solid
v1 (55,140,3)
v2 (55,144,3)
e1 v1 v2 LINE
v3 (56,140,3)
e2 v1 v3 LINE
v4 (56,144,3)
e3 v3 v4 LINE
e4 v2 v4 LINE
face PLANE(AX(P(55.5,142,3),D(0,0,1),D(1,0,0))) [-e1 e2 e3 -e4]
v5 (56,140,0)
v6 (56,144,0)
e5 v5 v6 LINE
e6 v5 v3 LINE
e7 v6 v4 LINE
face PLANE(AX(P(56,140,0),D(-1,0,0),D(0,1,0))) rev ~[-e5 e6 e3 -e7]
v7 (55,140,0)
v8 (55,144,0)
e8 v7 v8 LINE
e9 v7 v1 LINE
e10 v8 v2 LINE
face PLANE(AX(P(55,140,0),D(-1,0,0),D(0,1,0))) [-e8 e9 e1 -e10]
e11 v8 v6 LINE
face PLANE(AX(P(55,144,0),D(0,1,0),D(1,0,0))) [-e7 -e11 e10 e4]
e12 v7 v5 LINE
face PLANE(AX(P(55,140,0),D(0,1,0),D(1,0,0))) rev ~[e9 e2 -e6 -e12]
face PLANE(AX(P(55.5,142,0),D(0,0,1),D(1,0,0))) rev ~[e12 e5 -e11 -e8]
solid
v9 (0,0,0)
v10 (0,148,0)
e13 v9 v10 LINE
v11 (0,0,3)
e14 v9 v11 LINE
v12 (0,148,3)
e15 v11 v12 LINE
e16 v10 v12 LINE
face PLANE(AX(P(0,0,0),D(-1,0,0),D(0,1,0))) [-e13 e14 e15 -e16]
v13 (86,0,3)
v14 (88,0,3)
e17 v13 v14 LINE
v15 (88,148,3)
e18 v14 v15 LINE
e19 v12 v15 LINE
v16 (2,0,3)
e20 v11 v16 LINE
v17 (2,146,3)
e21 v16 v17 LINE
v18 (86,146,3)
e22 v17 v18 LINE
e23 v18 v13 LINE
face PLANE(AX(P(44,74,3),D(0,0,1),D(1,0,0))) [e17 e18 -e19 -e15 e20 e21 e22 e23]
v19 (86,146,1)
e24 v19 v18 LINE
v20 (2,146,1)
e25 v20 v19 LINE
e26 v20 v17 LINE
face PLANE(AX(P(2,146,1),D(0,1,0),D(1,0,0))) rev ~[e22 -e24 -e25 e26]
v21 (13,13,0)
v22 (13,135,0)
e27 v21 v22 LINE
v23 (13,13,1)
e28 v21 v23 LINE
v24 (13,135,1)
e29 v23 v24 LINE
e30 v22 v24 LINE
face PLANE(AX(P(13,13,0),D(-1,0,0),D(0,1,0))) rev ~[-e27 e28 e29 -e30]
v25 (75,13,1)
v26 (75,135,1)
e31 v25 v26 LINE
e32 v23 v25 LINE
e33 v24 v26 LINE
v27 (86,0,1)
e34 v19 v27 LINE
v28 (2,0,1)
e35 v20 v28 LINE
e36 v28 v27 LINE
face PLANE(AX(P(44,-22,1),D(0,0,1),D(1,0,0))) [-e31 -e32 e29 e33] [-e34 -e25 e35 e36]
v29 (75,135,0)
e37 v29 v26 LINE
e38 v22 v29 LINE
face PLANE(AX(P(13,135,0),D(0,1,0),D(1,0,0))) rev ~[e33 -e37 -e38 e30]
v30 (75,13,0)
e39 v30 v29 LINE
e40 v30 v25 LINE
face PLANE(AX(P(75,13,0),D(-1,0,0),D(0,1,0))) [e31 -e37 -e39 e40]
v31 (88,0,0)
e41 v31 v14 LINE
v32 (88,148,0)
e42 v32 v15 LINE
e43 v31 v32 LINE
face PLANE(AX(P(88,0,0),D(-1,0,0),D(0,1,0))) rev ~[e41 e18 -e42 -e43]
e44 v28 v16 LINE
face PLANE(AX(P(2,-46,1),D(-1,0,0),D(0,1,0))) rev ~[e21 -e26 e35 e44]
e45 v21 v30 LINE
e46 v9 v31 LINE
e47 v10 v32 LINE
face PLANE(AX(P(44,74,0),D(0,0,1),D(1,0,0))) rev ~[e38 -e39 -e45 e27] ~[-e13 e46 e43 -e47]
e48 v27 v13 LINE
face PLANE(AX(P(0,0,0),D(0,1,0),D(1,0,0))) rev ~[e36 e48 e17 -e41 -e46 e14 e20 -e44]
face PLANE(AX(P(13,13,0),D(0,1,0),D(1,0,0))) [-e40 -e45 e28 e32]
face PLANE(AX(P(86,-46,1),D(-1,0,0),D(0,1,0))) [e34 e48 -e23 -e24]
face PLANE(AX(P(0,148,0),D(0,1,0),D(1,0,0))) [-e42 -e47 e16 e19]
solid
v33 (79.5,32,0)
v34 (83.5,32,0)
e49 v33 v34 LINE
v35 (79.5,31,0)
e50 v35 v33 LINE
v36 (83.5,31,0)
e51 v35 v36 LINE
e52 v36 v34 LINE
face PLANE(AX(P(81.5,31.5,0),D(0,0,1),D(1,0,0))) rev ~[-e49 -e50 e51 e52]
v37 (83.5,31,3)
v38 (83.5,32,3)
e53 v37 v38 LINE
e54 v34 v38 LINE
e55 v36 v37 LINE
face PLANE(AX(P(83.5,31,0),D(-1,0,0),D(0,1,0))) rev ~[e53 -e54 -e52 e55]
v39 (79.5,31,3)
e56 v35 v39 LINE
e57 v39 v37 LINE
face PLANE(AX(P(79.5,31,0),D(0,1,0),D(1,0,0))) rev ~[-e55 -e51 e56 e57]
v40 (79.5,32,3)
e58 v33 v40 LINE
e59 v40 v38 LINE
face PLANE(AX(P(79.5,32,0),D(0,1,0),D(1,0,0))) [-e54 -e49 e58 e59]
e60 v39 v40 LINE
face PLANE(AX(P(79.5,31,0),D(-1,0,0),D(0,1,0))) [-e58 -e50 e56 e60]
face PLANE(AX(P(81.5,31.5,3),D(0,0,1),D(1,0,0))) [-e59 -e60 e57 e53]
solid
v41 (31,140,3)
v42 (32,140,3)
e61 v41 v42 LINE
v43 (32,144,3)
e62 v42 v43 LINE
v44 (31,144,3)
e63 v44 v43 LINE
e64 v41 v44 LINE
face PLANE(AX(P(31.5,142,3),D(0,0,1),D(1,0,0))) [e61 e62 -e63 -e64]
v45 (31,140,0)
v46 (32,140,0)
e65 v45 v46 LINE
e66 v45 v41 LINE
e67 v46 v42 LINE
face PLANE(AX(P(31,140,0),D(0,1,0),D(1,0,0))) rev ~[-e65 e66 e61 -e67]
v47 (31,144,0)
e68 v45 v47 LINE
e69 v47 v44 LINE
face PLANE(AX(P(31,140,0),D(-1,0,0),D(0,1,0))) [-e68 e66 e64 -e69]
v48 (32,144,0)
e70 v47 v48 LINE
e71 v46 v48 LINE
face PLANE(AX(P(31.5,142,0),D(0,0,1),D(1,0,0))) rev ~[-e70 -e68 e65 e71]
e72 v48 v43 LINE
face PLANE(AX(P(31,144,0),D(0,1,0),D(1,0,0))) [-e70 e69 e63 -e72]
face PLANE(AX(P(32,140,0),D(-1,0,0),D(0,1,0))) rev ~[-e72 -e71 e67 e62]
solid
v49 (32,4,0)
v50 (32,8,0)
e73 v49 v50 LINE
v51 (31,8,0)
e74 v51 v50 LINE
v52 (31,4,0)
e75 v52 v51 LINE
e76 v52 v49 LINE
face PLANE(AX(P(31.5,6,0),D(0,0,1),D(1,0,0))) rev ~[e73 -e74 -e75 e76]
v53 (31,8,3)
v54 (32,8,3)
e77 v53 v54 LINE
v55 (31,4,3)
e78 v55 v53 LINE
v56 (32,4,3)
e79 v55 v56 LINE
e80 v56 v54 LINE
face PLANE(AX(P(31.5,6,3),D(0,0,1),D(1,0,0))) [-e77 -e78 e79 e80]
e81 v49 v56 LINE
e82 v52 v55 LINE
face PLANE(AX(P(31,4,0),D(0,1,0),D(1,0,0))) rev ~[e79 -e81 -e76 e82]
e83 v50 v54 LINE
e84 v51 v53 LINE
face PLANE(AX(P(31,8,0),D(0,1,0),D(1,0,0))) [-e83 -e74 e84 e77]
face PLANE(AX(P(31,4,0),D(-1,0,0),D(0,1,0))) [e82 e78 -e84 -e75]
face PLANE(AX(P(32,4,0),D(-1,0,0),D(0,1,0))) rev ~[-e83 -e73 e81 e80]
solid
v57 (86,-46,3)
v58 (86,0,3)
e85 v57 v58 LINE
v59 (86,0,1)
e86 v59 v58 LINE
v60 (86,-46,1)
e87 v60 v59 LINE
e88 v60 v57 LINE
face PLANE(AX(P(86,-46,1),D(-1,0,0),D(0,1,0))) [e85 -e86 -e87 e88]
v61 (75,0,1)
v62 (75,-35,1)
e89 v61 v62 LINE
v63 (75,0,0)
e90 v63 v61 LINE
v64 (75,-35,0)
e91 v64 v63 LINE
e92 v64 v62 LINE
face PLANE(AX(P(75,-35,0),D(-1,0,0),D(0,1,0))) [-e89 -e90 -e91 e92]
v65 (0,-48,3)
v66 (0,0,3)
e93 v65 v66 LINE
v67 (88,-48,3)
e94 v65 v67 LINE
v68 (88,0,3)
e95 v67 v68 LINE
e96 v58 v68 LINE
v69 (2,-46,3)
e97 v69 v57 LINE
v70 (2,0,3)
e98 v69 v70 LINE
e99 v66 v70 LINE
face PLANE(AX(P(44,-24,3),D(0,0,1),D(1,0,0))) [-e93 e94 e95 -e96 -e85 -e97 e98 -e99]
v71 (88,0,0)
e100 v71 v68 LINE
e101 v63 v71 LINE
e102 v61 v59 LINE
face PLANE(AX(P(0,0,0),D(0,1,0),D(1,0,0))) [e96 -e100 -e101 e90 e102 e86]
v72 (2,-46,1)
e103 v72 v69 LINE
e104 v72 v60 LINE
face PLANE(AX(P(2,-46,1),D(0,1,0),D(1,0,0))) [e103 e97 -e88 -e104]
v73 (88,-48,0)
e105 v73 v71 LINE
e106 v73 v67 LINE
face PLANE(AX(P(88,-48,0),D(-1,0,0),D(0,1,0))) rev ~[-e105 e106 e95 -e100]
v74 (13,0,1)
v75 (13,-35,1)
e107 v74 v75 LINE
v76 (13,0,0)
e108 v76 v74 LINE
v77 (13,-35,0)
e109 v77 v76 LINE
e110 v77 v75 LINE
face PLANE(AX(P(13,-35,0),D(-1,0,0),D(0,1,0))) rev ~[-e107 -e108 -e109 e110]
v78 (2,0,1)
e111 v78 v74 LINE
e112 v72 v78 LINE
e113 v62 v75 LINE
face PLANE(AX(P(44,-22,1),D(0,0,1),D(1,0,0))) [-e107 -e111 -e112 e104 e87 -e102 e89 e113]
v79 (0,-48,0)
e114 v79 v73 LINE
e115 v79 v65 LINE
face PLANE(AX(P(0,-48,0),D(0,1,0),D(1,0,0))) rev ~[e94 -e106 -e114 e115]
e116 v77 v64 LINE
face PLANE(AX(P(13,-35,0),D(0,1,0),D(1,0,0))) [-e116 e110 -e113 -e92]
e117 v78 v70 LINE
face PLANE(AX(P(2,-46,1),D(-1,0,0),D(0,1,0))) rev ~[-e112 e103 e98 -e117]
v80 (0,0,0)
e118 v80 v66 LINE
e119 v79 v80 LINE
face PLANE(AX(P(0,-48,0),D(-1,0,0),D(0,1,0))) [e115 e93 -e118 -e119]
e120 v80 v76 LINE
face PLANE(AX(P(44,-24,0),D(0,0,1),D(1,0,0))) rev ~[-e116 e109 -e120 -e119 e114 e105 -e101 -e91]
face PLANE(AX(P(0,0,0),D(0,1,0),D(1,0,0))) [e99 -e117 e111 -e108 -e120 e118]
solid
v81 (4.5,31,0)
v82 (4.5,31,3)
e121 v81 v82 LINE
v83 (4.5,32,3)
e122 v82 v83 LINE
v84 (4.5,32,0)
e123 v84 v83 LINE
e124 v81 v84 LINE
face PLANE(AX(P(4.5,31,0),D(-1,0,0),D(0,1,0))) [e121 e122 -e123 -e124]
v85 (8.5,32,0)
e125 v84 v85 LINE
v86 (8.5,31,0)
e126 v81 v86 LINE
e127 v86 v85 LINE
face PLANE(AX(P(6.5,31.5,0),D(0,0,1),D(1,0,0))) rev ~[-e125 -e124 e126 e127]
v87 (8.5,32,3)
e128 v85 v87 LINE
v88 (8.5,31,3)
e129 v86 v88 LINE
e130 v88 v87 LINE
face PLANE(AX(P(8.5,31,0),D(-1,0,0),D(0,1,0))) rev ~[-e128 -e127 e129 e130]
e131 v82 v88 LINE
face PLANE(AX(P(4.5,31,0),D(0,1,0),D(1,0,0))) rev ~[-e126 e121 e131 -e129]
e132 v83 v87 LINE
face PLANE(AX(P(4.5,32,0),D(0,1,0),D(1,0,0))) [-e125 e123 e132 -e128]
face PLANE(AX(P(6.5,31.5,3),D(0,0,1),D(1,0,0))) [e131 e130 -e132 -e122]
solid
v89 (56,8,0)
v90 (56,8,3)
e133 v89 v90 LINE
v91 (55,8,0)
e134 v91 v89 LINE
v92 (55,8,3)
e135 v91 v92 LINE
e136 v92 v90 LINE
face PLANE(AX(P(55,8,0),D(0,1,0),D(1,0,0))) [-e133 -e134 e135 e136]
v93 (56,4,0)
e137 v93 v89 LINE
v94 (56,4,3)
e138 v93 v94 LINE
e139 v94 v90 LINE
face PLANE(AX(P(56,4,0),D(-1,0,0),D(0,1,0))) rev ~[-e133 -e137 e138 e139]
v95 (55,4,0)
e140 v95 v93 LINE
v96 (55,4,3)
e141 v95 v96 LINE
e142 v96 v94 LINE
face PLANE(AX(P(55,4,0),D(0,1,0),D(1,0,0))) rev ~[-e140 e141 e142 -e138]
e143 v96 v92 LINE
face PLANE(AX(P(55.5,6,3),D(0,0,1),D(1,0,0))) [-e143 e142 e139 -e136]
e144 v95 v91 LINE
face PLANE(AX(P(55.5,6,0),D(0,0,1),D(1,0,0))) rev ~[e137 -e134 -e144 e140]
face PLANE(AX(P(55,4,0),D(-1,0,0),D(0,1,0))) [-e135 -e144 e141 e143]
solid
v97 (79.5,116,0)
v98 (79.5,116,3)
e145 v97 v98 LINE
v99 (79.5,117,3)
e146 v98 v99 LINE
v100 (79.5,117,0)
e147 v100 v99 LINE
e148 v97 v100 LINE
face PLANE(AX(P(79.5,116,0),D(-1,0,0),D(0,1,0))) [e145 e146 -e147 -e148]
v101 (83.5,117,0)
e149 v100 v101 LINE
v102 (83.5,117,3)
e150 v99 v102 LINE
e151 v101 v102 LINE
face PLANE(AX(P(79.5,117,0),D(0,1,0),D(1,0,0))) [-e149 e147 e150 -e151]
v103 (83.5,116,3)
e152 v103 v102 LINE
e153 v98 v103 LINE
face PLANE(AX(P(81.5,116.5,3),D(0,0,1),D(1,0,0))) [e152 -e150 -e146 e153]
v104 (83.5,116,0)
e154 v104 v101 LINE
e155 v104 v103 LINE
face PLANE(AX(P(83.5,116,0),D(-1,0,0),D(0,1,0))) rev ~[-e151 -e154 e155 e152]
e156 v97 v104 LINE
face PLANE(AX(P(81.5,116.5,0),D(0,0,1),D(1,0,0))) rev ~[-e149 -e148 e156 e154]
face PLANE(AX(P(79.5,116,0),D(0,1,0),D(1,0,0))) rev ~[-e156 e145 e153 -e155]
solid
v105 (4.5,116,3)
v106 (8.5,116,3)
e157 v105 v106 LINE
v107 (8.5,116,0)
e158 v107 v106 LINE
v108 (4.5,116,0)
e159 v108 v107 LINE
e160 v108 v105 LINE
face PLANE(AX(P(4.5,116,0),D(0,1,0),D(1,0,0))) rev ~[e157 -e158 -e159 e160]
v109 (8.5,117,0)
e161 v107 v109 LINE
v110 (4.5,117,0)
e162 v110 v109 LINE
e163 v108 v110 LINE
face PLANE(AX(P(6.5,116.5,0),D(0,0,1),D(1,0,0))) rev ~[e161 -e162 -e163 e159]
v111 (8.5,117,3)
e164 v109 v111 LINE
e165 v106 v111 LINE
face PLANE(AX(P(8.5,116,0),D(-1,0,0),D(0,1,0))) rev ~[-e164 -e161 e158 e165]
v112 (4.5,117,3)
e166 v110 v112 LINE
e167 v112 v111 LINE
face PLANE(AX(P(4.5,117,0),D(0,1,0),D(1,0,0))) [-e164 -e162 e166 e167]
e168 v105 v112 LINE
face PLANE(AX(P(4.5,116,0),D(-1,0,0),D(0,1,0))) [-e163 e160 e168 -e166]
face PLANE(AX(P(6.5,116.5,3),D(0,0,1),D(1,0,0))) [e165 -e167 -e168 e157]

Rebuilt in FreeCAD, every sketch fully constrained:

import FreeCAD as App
import Part
import Sketcher

V = App.Vector
Q = App.Units.Quantity

doc = App.newDocument("Part")
params = doc.addObject("Spreadsheet::Sheet", "Params")
for row, (alias, value) in enumerate([
    ("sketch1_width", "4 mm"),
    ("sketch1_height", "1 mm"),
    ("pad1_length", "3 mm"),
    ("sketch2_width", "4 mm"),
    ("sketch2_height", "1 mm"),
    ("pad2_length", "3 mm"),
    ("sketch3_width", "4 mm"),
    ("sketch3_height", "1 mm"),
    ("pad3_length", "3 mm"),
    ("sketch4_width", "4 mm"),
    ("sketch4_height", "1 mm"),
    ("pad4_length", "3 mm"),
    ("sketch5_width", "1 mm"),
    ("sketch5_height", "4 mm"),
    ("pad5_length", "3 mm"),
    ("sketch6_width", "1 mm"),
    ("sketch6_height", "4 mm"),
    ("pad6_length", "3 mm"),
    ("sketch7_width", "1 mm"),
    ("sketch7_height", "4 mm"),
    ("pad7_length", "3 mm"),
    ("sketch8_width", "1 mm"),
    ("sketch8_height", "4 mm"),
    ("pad8_length", "3 mm"),
    ("sketch9_width", "84 mm"),
    ("sketch9_height", "48 mm"),
    ("pad9_length", "2 mm"),
    ("sketch10_width", "84 mm"),
    ("sketch10_height", "144 mm"),
    ("pad10_length", "2 mm"),
    ("sketch11_width", "62 mm"),
    ("sketch11_height", "122 mm"),
    ("pad11_length", "3 mm"),
    ("sketch12_width", "88 mm"),
    ("sketch12_height", "148 mm"),
    ("pad12_length", "3 mm"),
    ("sketch13_width", "62 mm"),
    ("sketch13_height", "35 mm"),
    ("pad13_length", "3 mm"),
    ("sketch14_width", "88 mm"),
    ("sketch14_height", "48 mm"),
    ("pad14_length", "3 mm"),
], start=1):
    params.set(f"A{row}", alias)
    params.set(f"B{row}", "=" + value)
    params.setAlias(f"B{row}", alias)

body = doc.addObject("PartDesign::Body", "Body")

# Sketch on XY plane
sketch1 = body.newObject("Sketcher::SketchObject", "Sketch")
sketch1.AttachmentSupport = (doc.getObject("XY_Plane"), [""])
sketch1.MapMode = "FlatFace"
sketch1.addGeometry(Part.LineSegment(V(4.5, 32, 0), V(4.5, 31, 0)), False)
sketch1.addGeometry(Part.LineSegment(V(4.5, 31, 0), V(8.5, 31, 0)), False)
sketch1.addGeometry(Part.LineSegment(V(8.5, 31, 0), V(8.5, 32, 0)), False)
sketch1.addGeometry(Part.LineSegment(V(8.5, 32, 0), V(4.5, 32, 0)), False)
sketch1.addConstraint(Sketcher.Constraint("Coincident", 0, 2, 1, 1))
sketch1.addConstraint(Sketcher.Constraint("Coincident", 1, 2, 2, 1))
sketch1.addConstraint(Sketcher.Constraint("Coincident", 2, 2, 3, 1))
sketch1.addConstraint(Sketcher.Constraint("Coincident", 3, 2, 0, 1))
sketch1.addConstraint(Sketcher.Constraint("Vertical", 0))
sketch1.addConstraint(Sketcher.Constraint("Horizontal", 1))
sketch1.addConstraint(Sketcher.Constraint("Vertical", 2))
sketch1.addConstraint(Sketcher.Constraint("Horizontal", 3))
sketch1.addConstraint(Sketcher.Constraint("DistanceX", 1, 1, 1, 2, Q("4 mm")))
sketch1.addConstraint(Sketcher.Constraint("DistanceY", 0, 2, 0, 1, Q("1 mm")))
sketch1.addConstraint(Sketcher.Constraint("DistanceY", -1, 1, 0, 2, Q("31 mm")))
sketch1.addConstraint(Sketcher.Constraint("DistanceX", -1, 1, 0, 2, Q("4.5 mm")))
sketch1.setExpression("Constraints[8]", "Params.sketch1_width")
sketch1.setExpression("Constraints[9]", "Params.sketch1_height")
pad1 = body.newObject("PartDesign::Pad", "Pad")
pad1.Profile = sketch1
pad1.setExpression("Length", "Params.pad1_length")
body2 = doc.addObject("PartDesign::Body", "Body001")

# Sketch on XY plane
sketch2 = body2.newObject("Sketcher::SketchObject", "Sketch001")
sketch2.AttachmentSupport = (doc.getObject("XY_Plane001"), [""])
sketch2.MapMode = "FlatFace"
sketch2.addGeometry(Part.LineSegment(V(79.5, 32, 0), V(79.5, 31, 0)), False)
sketch2.addGeometry(Part.LineSegment(V(79.5, 31, 0), V(83.5, 31, 0)), False)
sketch2.addGeometry(Part.LineSegment(V(83.5, 31, 0), V(83.5, 32, 0)), False)
sketch2.addGeometry(Part.LineSegment(V(83.5, 32, 0), V(79.5, 32, 0)), False)
sketch2.addConstraint(Sketcher.Constraint("Coincident", 0, 2, 1, 1))
sketch2.addConstraint(Sketcher.Constraint("Coincident", 1, 2, 2, 1))
sketch2.addConstraint(Sketcher.Constraint("Coincident", 2, 2, 3, 1))
sketch2.addConstraint(Sketcher.Constraint("Coincident", 3, 2, 0, 1))
sketch2.addConstraint(Sketcher.Constraint("Vertical", 0))
sketch2.addConstraint(Sketcher.Constraint("Horizontal", 1))
sketch2.addConstraint(Sketcher.Constraint("Vertical", 2))
sketch2.addConstraint(Sketcher.Constraint("Horizontal", 3))
sketch2.addConstraint(Sketcher.Constraint("DistanceX", 1, 1, 1, 2, Q("4 mm")))
sketch2.addConstraint(Sketcher.Constraint("DistanceY", 0, 2, 0, 1, Q("1 mm")))
sketch2.addConstraint(Sketcher.Constraint("DistanceY", -1, 1, 0, 2, Q("31 mm")))
sketch2.addConstraint(Sketcher.Constraint("DistanceX", -1, 1, 0, 2, Q("79.5 mm")))
sketch2.setExpression("Constraints[8]", "Params.sketch2_width")
sketch2.setExpression("Constraints[9]", "Params.sketch2_height")
pad2 = body2.newObject("PartDesign::Pad", "Pad001")
pad2.Profile = sketch2
pad2.setExpression("Length", "Params.pad2_length")
body3 = doc.addObject("PartDesign::Body", "Body002")

# Sketch on XY plane
sketch3 = body3.newObject("Sketcher::SketchObject", "Sketch002")
sketch3.AttachmentSupport = (doc.getObject("XY_Plane002"), [""])
sketch3.MapMode = "FlatFace"
sketch3.addGeometry(Part.LineSegment(V(4.5, 117, 0), V(4.5, 116, 0)), False)
sketch3.addGeometry(Part.LineSegment(V(4.5, 116, 0), V(8.5, 116, 0)), False)
sketch3.addGeometry(Part.LineSegment(V(8.5, 116, 0), V(8.5, 117, 0)), False)
sketch3.addGeometry(Part.LineSegment(V(8.5, 117, 0), V(4.5, 117, 0)), False)
sketch3.addConstraint(Sketcher.Constraint("Coincident", 0, 2, 1, 1))
sketch3.addConstraint(Sketcher.Constraint("Coincident", 1, 2, 2, 1))
sketch3.addConstraint(Sketcher.Constraint("Coincident", 2, 2, 3, 1))
sketch3.addConstraint(Sketcher.Constraint("Coincident", 3, 2, 0, 1))
sketch3.addConstraint(Sketcher.Constraint("Vertical", 0))
sketch3.addConstraint(Sketcher.Constraint("Horizontal", 1))
sketch3.addConstraint(Sketcher.Constraint("Vertical", 2))
sketch3.addConstraint(Sketcher.Constraint("Horizontal", 3))
sketch3.addConstraint(Sketcher.Constraint("DistanceX", 1, 1, 1, 2, Q("4 mm")))
sketch3.addConstraint(Sketcher.Constraint("DistanceY", 0, 2, 0, 1, Q("1 mm")))
sketch3.addConstraint(Sketcher.Constraint("DistanceY", -1, 1, 0, 2, Q("116 mm")))
sketch3.addConstraint(Sketcher.Constraint("DistanceX", -1, 1, 0, 2, Q("4.5 mm")))
sketch3.setExpression("Constraints[8]", "Params.sketch3_width")
sketch3.setExpression("Constraints[9]", "Params.sketch3_height")
pad3 = body3.newObject("PartDesign::Pad", "Pad002")
pad3.Profile = sketch3
pad3.setExpression("Length", "Params.pad3_length")
body4 = doc.addObject("PartDesign::Body", "Body003")

# Sketch on XY plane
sketch4 = body4.newObject("Sketcher::SketchObject", "Sketch003")
sketch4.AttachmentSupport = (doc.getObject("XY_Plane003"), [""])
sketch4.MapMode = "FlatFace"
sketch4.addGeometry(Part.LineSegment(V(79.5, 117, 0), V(79.5, 116, 0)), False)
sketch4.addGeometry(Part.LineSegment(V(79.5, 116, 0), V(83.5, 116, 0)), False)
sketch4.addGeometry(Part.LineSegment(V(83.5, 116, 0), V(83.5, 117, 0)), False)
sketch4.addGeometry(Part.LineSegment(V(83.5, 117, 0), V(79.5, 117, 0)), False)
sketch4.addConstraint(Sketcher.Constraint("Coincident", 0, 2, 1, 1))
sketch4.addConstraint(Sketcher.Constraint("Coincident", 1, 2, 2, 1))
sketch4.addConstraint(Sketcher.Constraint("Coincident", 2, 2, 3, 1))
sketch4.addConstraint(Sketcher.Constraint("Coincident", 3, 2, 0, 1))
sketch4.addConstraint(Sketcher.Constraint("Vertical", 0))
sketch4.addConstraint(Sketcher.Constraint("Horizontal", 1))
sketch4.addConstraint(Sketcher.Constraint("Vertical", 2))
sketch4.addConstraint(Sketcher.Constraint("Horizontal", 3))
sketch4.addConstraint(Sketcher.Constraint("DistanceX", 1, 1, 1, 2, Q("4 mm")))
sketch4.addConstraint(Sketcher.Constraint("DistanceY", 0, 2, 0, 1, Q("1 mm")))
sketch4.addConstraint(Sketcher.Constraint("DistanceY", -1, 1, 0, 2, Q("116 mm")))
sketch4.addConstraint(Sketcher.Constraint("DistanceX", -1, 1, 0, 2, Q("79.5 mm")))
sketch4.setExpression("Constraints[8]", "Params.sketch4_width")
sketch4.setExpression("Constraints[9]", "Params.sketch4_height")
pad4 = body4.newObject("PartDesign::Pad", "Pad003")
pad4.Profile = sketch4
pad4.setExpression("Length", "Params.pad4_length")
body5 = doc.addObject("PartDesign::Body", "Body004")

# Sketch on XY plane
sketch5 = body5.newObject("Sketcher::SketchObject", "Sketch004")
sketch5.AttachmentSupport = (doc.getObject("XY_Plane004"), [""])
sketch5.MapMode = "FlatFace"
sketch5.addGeometry(Part.LineSegment(V(31, 8, 0), V(31, 4, 0)), False)
sketch5.addGeometry(Part.LineSegment(V(31, 4, 0), V(32, 4, 0)), False)
sketch5.addGeometry(Part.LineSegment(V(32, 4, 0), V(32, 8, 0)), False)
sketch5.addGeometry(Part.LineSegment(V(32, 8, 0), V(31, 8, 0)), False)
sketch5.addConstraint(Sketcher.Constraint("Coincident", 0, 2, 1, 1))
sketch5.addConstraint(Sketcher.Constraint("Coincident", 1, 2, 2, 1))
sketch5.addConstraint(Sketcher.Constraint("Coincident", 2, 2, 3, 1))
sketch5.addConstraint(Sketcher.Constraint("Coincident", 3, 2, 0, 1))
sketch5.addConstraint(Sketcher.Constraint("Vertical", 0))
sketch5.addConstraint(Sketcher.Constraint("Horizontal", 1))
sketch5.addConstraint(Sketcher.Constraint("Vertical", 2))
sketch5.addConstraint(Sketcher.Constraint("Horizontal", 3))
sketch5.addConstraint(Sketcher.Constraint("DistanceX", 1, 1, 1, 2, Q("1 mm")))
sketch5.addConstraint(Sketcher.Constraint("DistanceY", 0, 2, 0, 1, Q("4 mm")))
sketch5.addConstraint(Sketcher.Constraint("DistanceX", -1, 1, 0, 2, Q("31 mm")))
sketch5.addConstraint(Sketcher.Constraint("DistanceY", -1, 1, 0, 2, Q("4 mm")))
sketch5.setExpression("Constraints[8]", "Params.sketch5_width")
sketch5.setExpression("Constraints[9]", "Params.sketch5_height")
pad5 = body5.newObject("PartDesign::Pad", "Pad004")
pad5.Profile = sketch5
pad5.setExpression("Length", "Params.pad5_length")
body6 = doc.addObject("PartDesign::Body", "Body005")

# Sketch on XY plane
sketch6 = body6.newObject("Sketcher::SketchObject", "Sketch005")
sketch6.AttachmentSupport = (doc.getObject("XY_Plane005"), [""])
sketch6.MapMode = "FlatFace"
sketch6.addGeometry(Part.LineSegment(V(55, 8, 0), V(55, 4, 0)), False)
sketch6.addGeometry(Part.LineSegment(V(55, 4, 0), V(56, 4, 0)), False)
sketch6.addGeometry(Part.LineSegment(V(56, 4, 0), V(56, 8, 0)), False)
sketch6.addGeometry(Part.LineSegment(V(56, 8, 0), V(55, 8, 0)), False)
sketch6.addConstraint(Sketcher.Constraint("Coincident", 0, 2, 1, 1))
sketch6.addConstraint(Sketcher.Constraint("Coincident", 1, 2, 2, 1))
sketch6.addConstraint(Sketcher.Constraint("Coincident", 2, 2, 3, 1))
sketch6.addConstraint(Sketcher.Constraint("Coincident", 3, 2, 0, 1))
sketch6.addConstraint(Sketcher.Constraint("Vertical", 0))
sketch6.addConstraint(Sketcher.Constraint("Horizontal", 1))
sketch6.addConstraint(Sketcher.Constraint("Vertical", 2))
sketch6.addConstraint(Sketcher.Constraint("Horizontal", 3))
sketch6.addConstraint(Sketcher.Constraint("DistanceX", 1, 1, 1, 2, Q("1 mm")))
sketch6.addConstraint(Sketcher.Constraint("DistanceY", 0, 2, 0, 1, Q("4 mm")))
sketch6.addConstraint(Sketcher.Constraint("DistanceX", -1, 1, 0, 2, Q("55 mm")))
sketch6.addConstraint(Sketcher.Constraint("DistanceY", -1, 1, 0, 2, Q("4 mm")))
sketch6.setExpression("Constraints[8]", "Params.sketch6_width")
sketch6.setExpression("Constraints[9]", "Params.sketch6_height")
pad6 = body6.newObject("PartDesign::Pad", "Pad005")
pad6.Profile = sketch6
pad6.setExpression("Length", "Params.pad6_length")
body7 = doc.addObject("PartDesign::Body", "Body006")

# Sketch on XY plane
sketch7 = body7.newObject("Sketcher::SketchObject", "Sketch006")
sketch7.AttachmentSupport = (doc.getObject("XY_Plane006"), [""])
sketch7.MapMode = "FlatFace"
sketch7.addGeometry(Part.LineSegment(V(31, 144, 0), V(31, 140, 0)), False)
sketch7.addGeometry(Part.LineSegment(V(31, 140, 0), V(32, 140, 0)), False)
sketch7.addGeometry(Part.LineSegment(V(32, 140, 0), V(32, 144, 0)), False)
sketch7.addGeometry(Part.LineSegment(V(32, 144, 0), V(31, 144, 0)), False)
sketch7.addConstraint(Sketcher.Constraint("Coincident", 0, 2, 1, 1))
sketch7.addConstraint(Sketcher.Constraint("Coincident", 1, 2, 2, 1))
sketch7.addConstraint(Sketcher.Constraint("Coincident", 2, 2, 3, 1))
sketch7.addConstraint(Sketcher.Constraint("Coincident", 3, 2, 0, 1))
sketch7.addConstraint(Sketcher.Constraint("Vertical", 0))
sketch7.addConstraint(Sketcher.Constraint("Horizontal", 1))
sketch7.addConstraint(Sketcher.Constraint("Vertical", 2))
sketch7.addConstraint(Sketcher.Constraint("Horizontal", 3))
sketch7.addConstraint(Sketcher.Constraint("DistanceX", 1, 1, 1, 2, Q("1 mm")))
sketch7.addConstraint(Sketcher.Constraint("DistanceY", 0, 2, 0, 1, Q("4 mm")))
sketch7.addConstraint(Sketcher.Constraint("DistanceX", -1, 1, 0, 2, Q("31 mm")))
sketch7.addConstraint(Sketcher.Constraint("DistanceY", -1, 1, 0, 2, Q("140 mm")))
sketch7.setExpression("Constraints[8]", "Params.sketch7_width")
sketch7.setExpression("Constraints[9]", "Params.sketch7_height")
pad7 = body7.newObject("PartDesign::Pad", "Pad006")
pad7.Profile = sketch7
pad7.setExpression("Length", "Params.pad7_length")
body8 = doc.addObject("PartDesign::Body", "Body007")

# Sketch on XY plane
sketch8 = body8.newObject("Sketcher::SketchObject", "Sketch007")
sketch8.AttachmentSupport = (doc.getObject("XY_Plane007"), [""])
sketch8.MapMode = "FlatFace"
sketch8.addGeometry(Part.LineSegment(V(55, 144, 0), V(55, 140, 0)), False)
sketch8.addGeometry(Part.LineSegment(V(55, 140, 0), V(56, 140, 0)), False)
sketch8.addGeometry(Part.LineSegment(V(56, 140, 0), V(56, 144, 0)), False)
sketch8.addGeometry(Part.LineSegment(V(56, 144, 0), V(55, 144, 0)), False)
sketch8.addConstraint(Sketcher.Constraint("Coincident", 0, 2, 1, 1))
sketch8.addConstraint(Sketcher.Constraint("Coincident", 1, 2, 2, 1))
sketch8.addConstraint(Sketcher.Constraint("Coincident", 2, 2, 3, 1))
sketch8.addConstraint(Sketcher.Constraint("Coincident", 3, 2, 0, 1))
sketch8.addConstraint(Sketcher.Constraint("Vertical", 0))
sketch8.addConstraint(Sketcher.Constraint("Horizontal", 1))
sketch8.addConstraint(Sketcher.Constraint("Vertical", 2))
sketch8.addConstraint(Sketcher.Constraint("Horizontal", 3))
sketch8.addConstraint(Sketcher.Constraint("DistanceX", 1, 1, 1, 2, Q("1 mm")))
sketch8.addConstraint(Sketcher.Constraint("DistanceY", 0, 2, 0, 1, Q("4 mm")))
sketch8.addConstraint(Sketcher.Constraint("DistanceX", -1, 1, 0, 2, Q("55 mm")))
sketch8.addConstraint(Sketcher.Constraint("DistanceY", -1, 1, 0, 2, Q("140 mm")))
sketch8.setExpression("Constraints[8]", "Params.sketch8_width")
sketch8.setExpression("Constraints[9]", "Params.sketch8_height")
pad8 = body8.newObject("PartDesign::Pad", "Pad007")
pad8.Profile = sketch8
pad8.setExpression("Length", "Params.pad8_length")
body9 = doc.addObject("PartDesign::Body", "Body008")

# Sketch on XY plane
sketch9 = body9.newObject("Sketcher::SketchObject", "Sketch008")
sketch9.AttachmentSupport = (doc.getObject("XY_Plane008"), [""])
sketch9.MapMode = "FlatFace"
sketch9.AttachmentOffset = App.Placement(V(0, 0, 1), App.Rotation())
sketch9.addGeometry(Part.LineSegment(V(2, 2, 0), V(2, -46, 0)), False)
sketch9.addGeometry(Part.LineSegment(V(2, -46, 0), V(86, -46, 0)), False)
sketch9.addGeometry(Part.LineSegment(V(86, -46, 0), V(86, 2, 0)), False)
sketch9.addGeometry(Part.LineSegment(V(86, 2, 0), V(2, 2, 0)), False)
sketch9.addConstraint(Sketcher.Constraint("Coincident", 0, 2, 1, 1))
sketch9.addConstraint(Sketcher.Constraint("Coincident", 1, 2, 2, 1))
sketch9.addConstraint(Sketcher.Constraint("Coincident", 2, 2, 3, 1))
sketch9.addConstraint(Sketcher.Constraint("Coincident", 3, 2, 0, 1))
sketch9.addConstraint(Sketcher.Constraint("Vertical", 0))
sketch9.addConstraint(Sketcher.Constraint("Horizontal", 1))
sketch9.addConstraint(Sketcher.Constraint("Vertical", 2))
sketch9.addConstraint(Sketcher.Constraint("Horizontal", 3))
sketch9.addConstraint(Sketcher.Constraint("DistanceX", 1, 1, 1, 2, Q("84 mm")))
sketch9.addConstraint(Sketcher.Constraint("DistanceY", 0, 2, 0, 1, Q("48 mm")))
sketch9.addConstraint(Sketcher.Constraint("DistanceX", -1, 1, 0, 2, Q("2 mm")))
sketch9.addConstraint(Sketcher.Constraint("DistanceY", 0, 2, -1, 1, Q("46 mm")))
sketch9.setExpression("Constraints[8]", "Params.sketch9_width")
sketch9.setExpression("Constraints[9]", "Params.sketch9_height")
pad9 = body9.newObject("PartDesign::Pad", "Pad008")
pad9.Profile = sketch9
pad9.setExpression("Length", "Params.pad9_length")
body10 = doc.addObject("PartDesign::Body", "Body009")

# Sketch on XY plane
sketch10 = body10.newObject("Sketcher::SketchObject", "Sketch009")
sketch10.AttachmentSupport = (doc.getObject("XY_Plane009"), [""])
sketch10.MapMode = "FlatFace"
sketch10.AttachmentOffset = App.Placement(V(0, 0, 1), App.Rotation())
sketch10.addGeometry(Part.LineSegment(V(2, 146, 0), V(2, 2, 0)), False)
sketch10.addGeometry(Part.LineSegment(V(2, 2, 0), V(86, 2, 0)), False)
sketch10.addGeometry(Part.LineSegment(V(86, 2, 0), V(86, 146, 0)), False)
sketch10.addGeometry(Part.LineSegment(V(86, 146, 0), V(2, 146, 0)), False)
sketch10.addConstraint(Sketcher.Constraint("Coincident", 0, 2, 1, 1))
sketch10.addConstraint(Sketcher.Constraint("Coincident", 1, 2, 2, 1))
sketch10.addConstraint(Sketcher.Constraint("Coincident", 2, 2, 3, 1))
sketch10.addConstraint(Sketcher.Constraint("Coincident", 3, 2, 0, 1))
sketch10.addConstraint(Sketcher.Constraint("Vertical", 0))
sketch10.addConstraint(Sketcher.Constraint("Horizontal", 1))
sketch10.addConstraint(Sketcher.Constraint("Vertical", 2))
sketch10.addConstraint(Sketcher.Constraint("Horizontal", 3))
sketch10.addConstraint(Sketcher.Constraint("DistanceX", 1, 1, 1, 2, Q("84 mm")))
sketch10.addConstraint(Sketcher.Constraint("DistanceY", 0, 2, 0, 1, Q("144 mm")))
sketch10.addConstraint(Sketcher.Constraint("DistanceX", -1, 1, 0, 2, Q("2 mm")))
sketch10.addConstraint(Sketcher.Constraint("DistanceY", -1, 1, 0, 2, Q("2 mm")))
sketch10.setExpression("Constraints[8]", "Params.sketch10_width")
sketch10.setExpression("Constraints[9]", "Params.sketch10_height")
pad10 = body10.newObject("PartDesign::Pad", "Pad009")
pad10.Profile = sketch10
pad10.setExpression("Length", "Params.pad10_length")
body11 = doc.addObject("PartDesign::Body", "Body010")

# Sketch on XY plane
sketch11 = body11.newObject("Sketcher::SketchObject", "Sketch010")
sketch11.AttachmentSupport = (doc.getObject("XY_Plane010"), [""])
sketch11.MapMode = "FlatFace"
sketch11.addGeometry(Part.LineSegment(V(13, 135, 0), V(13, 13, 0)), False)
sketch11.addGeometry(Part.LineSegment(V(13, 13, 0), V(75, 13, 0)), False)
sketch11.addGeometry(Part.LineSegment(V(75, 13, 0), V(75, 135, 0)), False)
sketch11.addGeometry(Part.LineSegment(V(75, 135, 0), V(13, 135, 0)), False)
sketch11.addConstraint(Sketcher.Constraint("Coincident", 0, 2, 1, 1))
sketch11.addConstraint(Sketcher.Constraint("Coincident", 1, 2, 2, 1))
sketch11.addConstraint(Sketcher.Constraint("Coincident", 2, 2, 3, 1))
sketch11.addConstraint(Sketcher.Constraint("Coincident", 3, 2, 0, 1))
sketch11.addConstraint(Sketcher.Constraint("Vertical", 0))
sketch11.addConstraint(Sketcher.Constraint("Horizontal", 1))
sketch11.addConstraint(Sketcher.Constraint("Vertical", 2))
sketch11.addConstraint(Sketcher.Constraint("Horizontal", 3))
sketch11.addConstraint(Sketcher.Constraint("DistanceX", 1, 1, 1, 2, Q("62 mm")))
sketch11.addConstraint(Sketcher.Constraint("DistanceY", 0, 2, 0, 1, Q("122 mm")))
sketch11.addConstraint(Sketcher.Constraint("DistanceX", -1, 1, 0, 2, Q("13 mm")))
sketch11.addConstraint(Sketcher.Constraint("DistanceY", -1, 1, 0, 2, Q("13 mm")))
sketch11.setExpression("Constraints[8]", "Params.sketch11_width")
sketch11.setExpression("Constraints[9]", "Params.sketch11_height")
pad11 = body11.newObject("PartDesign::Pad", "Pad010")
pad11.Profile = sketch11
pad11.setExpression("Length", "Params.pad11_length")
body12 = doc.addObject("PartDesign::Body", "Body011")

# Sketch on XY plane
sketch12 = body12.newObject("Sketcher::SketchObject", "Sketch011")
sketch12.AttachmentSupport = (doc.getObject("XY_Plane011"), [""])
sketch12.MapMode = "FlatFace"
sketch12.addGeometry(Part.LineSegment(V(0, 148, 0), V(0, 0, 0)), False)
sketch12.addGeometry(Part.LineSegment(V(0, 0, 0), V(88, 0, 0)), False)
sketch12.addGeometry(Part.LineSegment(V(88, 0, 0), V(88, 148, 0)), False)
sketch12.addGeometry(Part.LineSegment(V(88, 148, 0), V(0, 148, 0)), False)
sketch12.addConstraint(Sketcher.Constraint("Coincident", 0, 2, 1, 1))
sketch12.addConstraint(Sketcher.Constraint("Coincident", 1, 2, 2, 1))
sketch12.addConstraint(Sketcher.Constraint("Coincident", 2, 2, 3, 1))
sketch12.addConstraint(Sketcher.Constraint("Coincident", 3, 2, 0, 1))
sketch12.addConstraint(Sketcher.Constraint("Vertical", 0))
sketch12.addConstraint(Sketcher.Constraint("Horizontal", 1))
sketch12.addConstraint(Sketcher.Constraint("Vertical", 2))
sketch12.addConstraint(Sketcher.Constraint("Horizontal", 3))
sketch12.addConstraint(Sketcher.Constraint("Coincident", 0, 2, -1, 1))
sketch12.addConstraint(Sketcher.Constraint("DistanceX", 1, 1, 1, 2, Q("88 mm")))
sketch12.addConstraint(Sketcher.Constraint("DistanceY", 0, 2, 0, 1, Q("148 mm")))
sketch12.setExpression("Constraints[9]", "Params.sketch12_width")
sketch12.setExpression("Constraints[10]", "Params.sketch12_height")
pad12 = body12.newObject("PartDesign::Pad", "Pad011")
pad12.Profile = sketch12
pad12.setExpression("Length", "Params.pad12_length")
doc.recompute()

boolean = body12.newObject("PartDesign::Boolean", "Boolean")
boolean.Type = "Cut"
boolean.addObjects([body11])
doc.recompute()

boolean2 = body12.newObject("PartDesign::Boolean", "Boolean001")
boolean2.Type = "Cut"
boolean2.addObjects([body10])
doc.recompute()

body13 = doc.addObject("PartDesign::Body", "Body012")
body13.BaseFeature = body9
boolean3 = body12.newObject("PartDesign::Boolean", "Boolean002")
boolean3.Type = "Cut"
boolean3.addObjects([body13])
doc.recompute()
body14 = doc.addObject("PartDesign::Body", "Body013")

# Sketch on XY plane
sketch13 = body14.newObject("Sketcher::SketchObject", "Sketch012")
sketch13.AttachmentSupport = (doc.getObject("XY_Plane013"), [""])
sketch13.MapMode = "FlatFace"
sketch13.addGeometry(Part.LineSegment(V(13, 0, 0), V(13, -35, 0)), False)
sketch13.addGeometry(Part.LineSegment(V(13, -35, 0), V(75, -35, 0)), False)
sketch13.addGeometry(Part.LineSegment(V(75, -35, 0), V(75, 0, 0)), False)
sketch13.addGeometry(Part.LineSegment(V(75, 0, 0), V(13, 0, 0)), False)
sketch13.addConstraint(Sketcher.Constraint("Coincident", 0, 2, 1, 1))
sketch13.addConstraint(Sketcher.Constraint("Coincident", 1, 2, 2, 1))
sketch13.addConstraint(Sketcher.Constraint("Coincident", 2, 2, 3, 1))
sketch13.addConstraint(Sketcher.Constraint("Coincident", 3, 2, 0, 1))
sketch13.addConstraint(Sketcher.Constraint("Vertical", 0))
sketch13.addConstraint(Sketcher.Constraint("Horizontal", 1))
sketch13.addConstraint(Sketcher.Constraint("Vertical", 2))
sketch13.addConstraint(Sketcher.Constraint("Horizontal", 3))
sketch13.addConstraint(Sketcher.Constraint("PointOnObject", 2, 2, -1))
sketch13.addConstraint(Sketcher.Constraint("DistanceX", 1, 1, 1, 2, Q("62 mm")))
sketch13.addConstraint(Sketcher.Constraint("DistanceY", 0, 2, 0, 1, Q("35 mm")))
sketch13.addConstraint(Sketcher.Constraint("DistanceX", -1, 1, 0, 2, Q("13 mm")))
sketch13.setExpression("Constraints[9]", "Params.sketch13_width")
sketch13.setExpression("Constraints[10]", "Params.sketch13_height")
pad13 = body14.newObject("PartDesign::Pad", "Pad012")
pad13.Profile = sketch13
pad13.setExpression("Length", "Params.pad13_length")
body15 = doc.addObject("PartDesign::Body", "Body014")

# Sketch on XY plane
sketch14 = body15.newObject("Sketcher::SketchObject", "Sketch013")
sketch14.AttachmentSupport = (doc.getObject("XY_Plane014"), [""])
sketch14.MapMode = "FlatFace"
sketch14.addGeometry(Part.LineSegment(V(0, 0, 0), V(0, -48, 0)), False)
sketch14.addGeometry(Part.LineSegment(V(0, -48, 0), V(88, -48, 0)), False)
sketch14.addGeometry(Part.LineSegment(V(88, -48, 0), V(88, 0, 0)), False)
sketch14.addGeometry(Part.LineSegment(V(88, 0, 0), V(0, 0, 0)), False)
sketch14.addConstraint(Sketcher.Constraint("Coincident", 0, 2, 1, 1))
sketch14.addConstraint(Sketcher.Constraint("Coincident", 1, 2, 2, 1))
sketch14.addConstraint(Sketcher.Constraint("Coincident", 2, 2, 3, 1))
sketch14.addConstraint(Sketcher.Constraint("Coincident", 3, 2, 0, 1))
sketch14.addConstraint(Sketcher.Constraint("Vertical", 0))
sketch14.addConstraint(Sketcher.Constraint("Horizontal", 1))
sketch14.addConstraint(Sketcher.Constraint("Vertical", 2))
sketch14.addConstraint(Sketcher.Constraint("Horizontal", 3))
sketch14.addConstraint(Sketcher.Constraint("Coincident", 3, 2, -1, 1))
sketch14.addConstraint(Sketcher.Constraint("DistanceX", 1, 1, 1, 2, Q("88 mm")))
sketch14.addConstraint(Sketcher.Constraint("DistanceY", 0, 2, 0, 1, Q("48 mm")))
sketch14.setExpression("Constraints[9]", "Params.sketch14_width")
sketch14.setExpression("Constraints[10]", "Params.sketch14_height")
pad14 = body15.newObject("PartDesign::Pad", "Pad013")
pad14.Profile = sketch14
pad14.setExpression("Length", "Params.pad14_length")
doc.recompute()

boolean4 = body15.newObject("PartDesign::Boolean", "Boolean003")
boolean4.Type = "Cut"
boolean4.addObjects([body9])
doc.recompute()

boolean5 = body15.newObject("PartDesign::Boolean", "Boolean004")
boolean5.Type = "Cut"
boolean5.addObjects([body14])

doc.recompute()
